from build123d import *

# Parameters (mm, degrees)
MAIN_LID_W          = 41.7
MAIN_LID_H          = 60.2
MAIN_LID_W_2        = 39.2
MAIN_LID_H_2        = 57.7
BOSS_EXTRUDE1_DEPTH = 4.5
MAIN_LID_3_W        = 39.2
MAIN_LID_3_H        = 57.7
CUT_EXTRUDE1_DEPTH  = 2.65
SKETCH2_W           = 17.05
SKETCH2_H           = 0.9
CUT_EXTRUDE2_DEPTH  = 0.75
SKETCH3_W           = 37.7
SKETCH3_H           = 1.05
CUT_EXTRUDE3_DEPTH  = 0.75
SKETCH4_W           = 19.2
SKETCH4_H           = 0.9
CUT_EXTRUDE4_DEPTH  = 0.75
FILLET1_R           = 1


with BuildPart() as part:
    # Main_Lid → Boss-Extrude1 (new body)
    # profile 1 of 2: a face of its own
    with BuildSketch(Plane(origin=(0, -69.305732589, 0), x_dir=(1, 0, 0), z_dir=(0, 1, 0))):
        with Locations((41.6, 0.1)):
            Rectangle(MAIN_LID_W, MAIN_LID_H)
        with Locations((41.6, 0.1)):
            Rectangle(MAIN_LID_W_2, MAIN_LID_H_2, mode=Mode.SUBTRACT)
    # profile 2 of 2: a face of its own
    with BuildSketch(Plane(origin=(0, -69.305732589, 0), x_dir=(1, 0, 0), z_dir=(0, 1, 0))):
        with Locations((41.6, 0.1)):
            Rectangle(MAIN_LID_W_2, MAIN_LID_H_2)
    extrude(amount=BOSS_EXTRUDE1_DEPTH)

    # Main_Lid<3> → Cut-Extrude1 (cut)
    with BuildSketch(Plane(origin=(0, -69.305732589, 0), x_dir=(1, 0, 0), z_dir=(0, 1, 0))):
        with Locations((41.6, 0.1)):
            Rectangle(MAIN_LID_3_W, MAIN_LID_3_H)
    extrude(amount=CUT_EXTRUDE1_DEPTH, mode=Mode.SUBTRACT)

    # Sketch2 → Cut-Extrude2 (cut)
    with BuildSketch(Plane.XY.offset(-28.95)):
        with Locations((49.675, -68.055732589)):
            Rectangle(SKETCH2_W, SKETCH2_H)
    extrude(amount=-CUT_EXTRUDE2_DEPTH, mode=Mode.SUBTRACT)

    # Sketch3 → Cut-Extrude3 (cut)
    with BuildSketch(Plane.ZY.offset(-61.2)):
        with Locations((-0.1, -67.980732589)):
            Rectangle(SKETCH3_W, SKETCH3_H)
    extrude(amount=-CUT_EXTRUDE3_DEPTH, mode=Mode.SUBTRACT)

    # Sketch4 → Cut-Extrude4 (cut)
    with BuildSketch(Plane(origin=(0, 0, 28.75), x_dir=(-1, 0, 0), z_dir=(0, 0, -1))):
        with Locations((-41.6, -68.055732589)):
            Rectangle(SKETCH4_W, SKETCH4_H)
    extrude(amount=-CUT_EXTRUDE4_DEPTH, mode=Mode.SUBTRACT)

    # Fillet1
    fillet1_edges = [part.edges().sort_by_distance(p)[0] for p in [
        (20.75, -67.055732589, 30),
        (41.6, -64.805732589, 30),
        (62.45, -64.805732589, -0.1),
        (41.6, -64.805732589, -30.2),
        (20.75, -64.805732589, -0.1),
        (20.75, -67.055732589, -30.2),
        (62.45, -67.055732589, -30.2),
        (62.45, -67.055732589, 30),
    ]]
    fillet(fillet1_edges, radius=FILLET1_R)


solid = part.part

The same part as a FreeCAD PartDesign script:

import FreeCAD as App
import Part
import Sketcher
from FreeCAD import Vector


def edges_at(feature, points):
    """Names of the edges that pass closest to the given points."""
    edges = feature.Shape.Edges
    near = lambda p: min(range(len(edges)), key=lambda i: edges[i].distToShape(Part.Vertex(*p))[0])
    return sorted({f"Edge{near(p) + 1}" for p in points})

doc = App.newDocument("Part")
body = doc.addObject("PartDesign::Body", "Body")

sketch1 = body.newObject("Sketcher::SketchObject", "Sketch")
sketch1.AttachmentSupport = (doc.getObject("XZ_Plane"), [""])
sketch1.MapMode = "FlatFace"
sketch1.AttachmentOffset = App.Placement(Vector(0, 0, 69.305733), App.Rotation())
sketch1.addGeometry(Part.LineSegment(Vector(21, -30, 0), Vector(21, 30, 0)), False)
sketch1.addGeometry(Part.LineSegment(Vector(21, 30, 0), Vector(62, 30, 0)), False)
sketch1.addGeometry(Part.LineSegment(Vector(62, 30, 0), Vector(62, -30, 0)), False)
sketch1.addGeometry(Part.LineSegment(Vector(62, -30, 0), Vector(21, -30, 0)), False)
sketch1.addConstraint(Sketcher.Constraint("Coincident", 0, 2, 1, 1))
sketch1.addConstraint(Sketcher.Constraint("Coincident", 1, 2, 2, 1))
sketch1.addConstraint(Sketcher.Constraint("Coincident", 2, 2, 3, 1))
sketch1.addConstraint(Sketcher.Constraint("Coincident", 3, 2, 0, 1))
sketch1.addConstraint(Sketcher.Constraint("Vertical", 0))
sketch1.addConstraint(Sketcher.Constraint("Horizontal", 1))
sketch1.addConstraint(Sketcher.Constraint("Vertical", 2))
sketch1.addConstraint(Sketcher.Constraint("Horizontal", 3))
sketch1.addConstraint(Sketcher.Constraint("DistanceX", 1, 1, 1, 2, 41.7))
sketch1.addConstraint(Sketcher.Constraint("DistanceY", 0, 1, 0, 2, 60.2))
sketch1.addConstraint(Sketcher.Constraint("DistanceY", -1, 1, 0, 2, 30.0))
sketch1.addConstraint(Sketcher.Constraint("DistanceX", -1, 1, 0, 2, 20.75))
pad1 = body.newObject("PartDesign::Pad", "Pad")
pad1.Profile = sketch1
pad1.Length = 4.5
pad1.Reversed = True

sketch2 = body.newObject("Sketcher::SketchObject", "Sketch001")
sketch2.AttachmentSupport = (doc.getObject("XZ_Plane"), [""])
sketch2.MapMode = "FlatFace"
sketch2.AttachmentOffset = App.Placement(Vector(0, 0, 69.305733), App.Rotation())
sketch2.addGeometry(Part.LineSegment(Vector(22, -29, 0), Vector(22, 29, 0)), False)
sketch2.addGeometry(Part.LineSegment(Vector(22, 29, 0), Vector(61, 29, 0)), False)
sketch2.addGeometry(Part.LineSegment(Vector(61, 29, 0), Vector(61, -29, 0)), False)
sketch2.addGeometry(Part.LineSegment(Vector(61, -29, 0), Vector(22, -29, 0)), False)
sketch2.addConstraint(Sketcher.Constraint("Coincident", 0, 2, 1, 1))
sketch2.addConstraint(Sketcher.Constraint("Coincident", 1, 2, 2, 1))
sketch2.addConstraint(Sketcher.Constraint("Coincident", 2, 2, 3, 1))
sketch2.addConstraint(Sketcher.Constraint("Coincident", 3, 2, 0, 1))
sketch2.addConstraint(Sketcher.Constraint("Vertical", 0))
sketch2.addConstraint(Sketcher.Constraint("Horizontal", 1))
sketch2.addConstraint(Sketcher.Constraint("Vertical", 2))
sketch2.addConstraint(Sketcher.Constraint("Horizontal", 3))
sketch2.addConstraint(Sketcher.Constraint("DistanceX", 1, 1, 1, 2, 39.2))
sketch2.addConstraint(Sketcher.Constraint("DistanceY", 0, 1, 0, 2, 57.7))
sketch2.addConstraint(Sketcher.Constraint("DistanceX", -1, 1, 0, 2, 22.0))
sketch2.addConstraint(Sketcher.Constraint("DistanceY", -1, 1, 0, 2, 28.75))
pocket1 = body.newObject("PartDesign::Pocket", "Pocket")
pocket1.Profile = sketch2
pocket1.Length = 2.65

sketch3 = body.newObject("Sketcher::SketchObject", "Sketch002")
sketch3.AttachmentSupport = (doc.getObject("XY_Plane"), [""])
sketch3.MapMode = "FlatFace"
sketch3.AttachmentOffset = App.Placement(Vector(0, 0, -28.95), App.Rotation())
sketch3.addGeometry(Part.LineSegment(Vector(41.1, -67.6, 0), Vector(41.1, -68.5, 0)), False)
sketch3.addGeometry(Part.LineSegment(Vector(41.1, -68.5, 0), Vector(58.2, -68.5, 0)), False)
sketch3.addGeometry(Part.LineSegment(Vector(58.2, -68.5, 0), Vector(58.2, -67.6, 0)), False)
sketch3.addGeometry(Part.LineSegment(Vector(58.2, -67.6, 0), Vector(41.1, -67.6, 0)), False)
sketch3.addConstraint(Sketcher.Constraint("Coincident", 0, 2, 1, 1))
sketch3.addConstraint(Sketcher.Constraint("Coincident", 1, 2, 2, 1))
sketch3.addConstraint(Sketcher.Constraint("Coincident", 2, 2, 3, 1))
sketch3.addConstraint(Sketcher.Constraint("Coincident", 3, 2, 0, 1))
sketch3.addConstraint(Sketcher.Constraint("Vertical", 0))
sketch3.addConstraint(Sketcher.Constraint("Horizontal", 1))
sketch3.addConstraint(Sketcher.Constraint("Vertical", 2))
sketch3.addConstraint(Sketcher.Constraint("Horizontal", 3))
sketch3.addConstraint(Sketcher.Constraint("DistanceY", 0, 2, 0, 1, 0.9))
sketch3.addConstraint(Sketcher.Constraint("DistanceX", 1, 1, 1, 2, 17.05))
sketch3.addConstraint(Sketcher.Constraint("DistanceX", -1, 1, 1, 2, 58.2))
sketch3.addConstraint(Sketcher.Constraint("DistanceY", 0, 2, -1, 1, 68.505733))
pocket2 = body.newObject("PartDesign::Pocket", "Pocket001")
pocket2.Profile = sketch3
pocket2.Length = 0.75

sketch4 = body.newObject("Sketcher::SketchObject", "Sketch003")
sketch4.AttachmentSupport = (doc.getObject("YZ_Plane"), [""])
sketch4.MapMode = "FlatFace"
sketch4.AttachmentOffset = App.Placement(Vector(0, 0, 61.2), App.Rotation())
sketch4.addGeometry(Part.LineSegment(Vector(-67.5, -18.9, 0), Vector(-68.5, -18.9, 0)), False)
sketch4.addGeometry(Part.LineSegment(Vector(-68.5, -18.9, 0), Vector(-68.5, 18.8, 0)), False)
sketch4.addGeometry(Part.LineSegment(Vector(-68.5, 18.8, 0), Vector(-67.5, 18.8, 0)), False)
sketch4.addGeometry(Part.LineSegment(Vector(-67.5, 18.8, 0), Vector(-67.5, -18.9, 0)), False)
sketch4.addConstraint(Sketcher.Constraint("Coincident", 0, 2, 1, 1))
sketch4.addConstraint(Sketcher.Constraint("Coincident", 1, 2, 2, 1))
sketch4.addConstraint(Sketcher.Constraint("Coincident", 2, 2, 3, 1))
sketch4.addConstraint(Sketcher.Constraint("Coincident", 3, 2, 0, 1))
sketch4.addConstraint(Sketcher.Constraint("Horizontal", 0))
sketch4.addConstraint(Sketcher.Constraint("Vertical", 1))
sketch4.addConstraint(Sketcher.Constraint("Horizontal", 2))
sketch4.addConstraint(Sketcher.Constraint("Vertical", 3))
sketch4.addConstraint(Sketcher.Constraint("DistanceY", 1, 1, 1, 2, 37.7))
sketch4.addConstraint(Sketcher.Constraint("DistanceX", 0, 2, 0, 1, 1.05))
sketch4.addConstraint(Sketcher.Constraint("DistanceY", 0, 2, -1, 1, 18.95))
sketch4.addConstraint(Sketcher.Constraint("DistanceX", 0, 2, -1, 1, 68.505733))
pocket3 = body.newObject("PartDesign::Pocket", "Pocket002")
pocket3.Profile = sketch4
pocket3.Length = 0.75
pocket3.Reversed = True

sketch5 = body.newObject("Sketcher::SketchObject", "Sketch004")
sketch5.AttachmentSupport = (doc.getObject("XY_Plane"), [""])
sketch5.MapMode = "FlatFace"
sketch5.AttachmentOffset = App.Placement(Vector(0, 0, 28.75), App.Rotation())
sketch5.addGeometry(Part.LineSegment(Vector(51.2, -67.6, 0), Vector(51.2, -68.5, 0)), False)
sketch5.addGeometry(Part.LineSegment(Vector(51.2, -68.5, 0), Vector(32, -68.5, 0)), False)
sketch5.addGeometry(Part.LineSegment(Vector(32, -68.5, 0), Vector(32, -67.6, 0)), False)
sketch5.addGeometry(Part.LineSegment(Vector(32, -67.6, 0), Vector(51.2, -67.6, 0)), False)
sketch5.addConstraint(Sketcher.Constraint("Coincident", 0, 2, 1, 1))
sketch5.addConstraint(Sketcher.Constraint("Coincident", 1, 2, 2, 1))
sketch5.addConstraint(Sketcher.Constraint("Coincident", 2, 2, 3, 1))
sketch5.addConstraint(Sketcher.Constraint("Coincident", 3, 2, 0, 1))
sketch5.addConstraint(Sketcher.Constraint("Vertical", 0))
sketch5.addConstraint(Sketcher.Constraint("Horizontal", 1))
sketch5.addConstraint(Sketcher.Constraint("Vertical", 2))
sketch5.addConstraint(Sketcher.Constraint("Horizontal", 3))
sketch5.addConstraint(Sketcher.Constraint("DistanceX", 1, 2, 1, 1, 19.2))
sketch5.addConstraint(Sketcher.Constraint("DistanceY", 0, 2, 0, 1, 0.9))
sketch5.addConstraint(Sketcher.Constraint("DistanceX", -1, 1, 1, 2, 32.0))
sketch5.addConstraint(Sketcher.Constraint("DistanceY", 0, 2, -1, 1, 68.505733))
pocket4 = body.newObject("PartDesign::Pocket", "Pocket003")
pocket4.Profile = sketch5
pocket4.Length = 0.75
pocket4.Reversed = True
doc.recompute()

fillet = body.newObject("PartDesign::Fillet", "Fillet")
fillet.Base = (pocket4, edges_at(pocket4, [
    (20.75, -67.056, 30),
    (41.6, -64.806, 30),
    (62.45, -64.806, -0.1),
    (41.6, -64.806, -30.2),
    (20.75, -64.806, -0.1),
    (20.75, -67.056, -30.2),
    (62.45, -67.056, -30.2),
    (62.45, -67.056, 30),
]))
fillet.Radius = 1

doc.recompute()
